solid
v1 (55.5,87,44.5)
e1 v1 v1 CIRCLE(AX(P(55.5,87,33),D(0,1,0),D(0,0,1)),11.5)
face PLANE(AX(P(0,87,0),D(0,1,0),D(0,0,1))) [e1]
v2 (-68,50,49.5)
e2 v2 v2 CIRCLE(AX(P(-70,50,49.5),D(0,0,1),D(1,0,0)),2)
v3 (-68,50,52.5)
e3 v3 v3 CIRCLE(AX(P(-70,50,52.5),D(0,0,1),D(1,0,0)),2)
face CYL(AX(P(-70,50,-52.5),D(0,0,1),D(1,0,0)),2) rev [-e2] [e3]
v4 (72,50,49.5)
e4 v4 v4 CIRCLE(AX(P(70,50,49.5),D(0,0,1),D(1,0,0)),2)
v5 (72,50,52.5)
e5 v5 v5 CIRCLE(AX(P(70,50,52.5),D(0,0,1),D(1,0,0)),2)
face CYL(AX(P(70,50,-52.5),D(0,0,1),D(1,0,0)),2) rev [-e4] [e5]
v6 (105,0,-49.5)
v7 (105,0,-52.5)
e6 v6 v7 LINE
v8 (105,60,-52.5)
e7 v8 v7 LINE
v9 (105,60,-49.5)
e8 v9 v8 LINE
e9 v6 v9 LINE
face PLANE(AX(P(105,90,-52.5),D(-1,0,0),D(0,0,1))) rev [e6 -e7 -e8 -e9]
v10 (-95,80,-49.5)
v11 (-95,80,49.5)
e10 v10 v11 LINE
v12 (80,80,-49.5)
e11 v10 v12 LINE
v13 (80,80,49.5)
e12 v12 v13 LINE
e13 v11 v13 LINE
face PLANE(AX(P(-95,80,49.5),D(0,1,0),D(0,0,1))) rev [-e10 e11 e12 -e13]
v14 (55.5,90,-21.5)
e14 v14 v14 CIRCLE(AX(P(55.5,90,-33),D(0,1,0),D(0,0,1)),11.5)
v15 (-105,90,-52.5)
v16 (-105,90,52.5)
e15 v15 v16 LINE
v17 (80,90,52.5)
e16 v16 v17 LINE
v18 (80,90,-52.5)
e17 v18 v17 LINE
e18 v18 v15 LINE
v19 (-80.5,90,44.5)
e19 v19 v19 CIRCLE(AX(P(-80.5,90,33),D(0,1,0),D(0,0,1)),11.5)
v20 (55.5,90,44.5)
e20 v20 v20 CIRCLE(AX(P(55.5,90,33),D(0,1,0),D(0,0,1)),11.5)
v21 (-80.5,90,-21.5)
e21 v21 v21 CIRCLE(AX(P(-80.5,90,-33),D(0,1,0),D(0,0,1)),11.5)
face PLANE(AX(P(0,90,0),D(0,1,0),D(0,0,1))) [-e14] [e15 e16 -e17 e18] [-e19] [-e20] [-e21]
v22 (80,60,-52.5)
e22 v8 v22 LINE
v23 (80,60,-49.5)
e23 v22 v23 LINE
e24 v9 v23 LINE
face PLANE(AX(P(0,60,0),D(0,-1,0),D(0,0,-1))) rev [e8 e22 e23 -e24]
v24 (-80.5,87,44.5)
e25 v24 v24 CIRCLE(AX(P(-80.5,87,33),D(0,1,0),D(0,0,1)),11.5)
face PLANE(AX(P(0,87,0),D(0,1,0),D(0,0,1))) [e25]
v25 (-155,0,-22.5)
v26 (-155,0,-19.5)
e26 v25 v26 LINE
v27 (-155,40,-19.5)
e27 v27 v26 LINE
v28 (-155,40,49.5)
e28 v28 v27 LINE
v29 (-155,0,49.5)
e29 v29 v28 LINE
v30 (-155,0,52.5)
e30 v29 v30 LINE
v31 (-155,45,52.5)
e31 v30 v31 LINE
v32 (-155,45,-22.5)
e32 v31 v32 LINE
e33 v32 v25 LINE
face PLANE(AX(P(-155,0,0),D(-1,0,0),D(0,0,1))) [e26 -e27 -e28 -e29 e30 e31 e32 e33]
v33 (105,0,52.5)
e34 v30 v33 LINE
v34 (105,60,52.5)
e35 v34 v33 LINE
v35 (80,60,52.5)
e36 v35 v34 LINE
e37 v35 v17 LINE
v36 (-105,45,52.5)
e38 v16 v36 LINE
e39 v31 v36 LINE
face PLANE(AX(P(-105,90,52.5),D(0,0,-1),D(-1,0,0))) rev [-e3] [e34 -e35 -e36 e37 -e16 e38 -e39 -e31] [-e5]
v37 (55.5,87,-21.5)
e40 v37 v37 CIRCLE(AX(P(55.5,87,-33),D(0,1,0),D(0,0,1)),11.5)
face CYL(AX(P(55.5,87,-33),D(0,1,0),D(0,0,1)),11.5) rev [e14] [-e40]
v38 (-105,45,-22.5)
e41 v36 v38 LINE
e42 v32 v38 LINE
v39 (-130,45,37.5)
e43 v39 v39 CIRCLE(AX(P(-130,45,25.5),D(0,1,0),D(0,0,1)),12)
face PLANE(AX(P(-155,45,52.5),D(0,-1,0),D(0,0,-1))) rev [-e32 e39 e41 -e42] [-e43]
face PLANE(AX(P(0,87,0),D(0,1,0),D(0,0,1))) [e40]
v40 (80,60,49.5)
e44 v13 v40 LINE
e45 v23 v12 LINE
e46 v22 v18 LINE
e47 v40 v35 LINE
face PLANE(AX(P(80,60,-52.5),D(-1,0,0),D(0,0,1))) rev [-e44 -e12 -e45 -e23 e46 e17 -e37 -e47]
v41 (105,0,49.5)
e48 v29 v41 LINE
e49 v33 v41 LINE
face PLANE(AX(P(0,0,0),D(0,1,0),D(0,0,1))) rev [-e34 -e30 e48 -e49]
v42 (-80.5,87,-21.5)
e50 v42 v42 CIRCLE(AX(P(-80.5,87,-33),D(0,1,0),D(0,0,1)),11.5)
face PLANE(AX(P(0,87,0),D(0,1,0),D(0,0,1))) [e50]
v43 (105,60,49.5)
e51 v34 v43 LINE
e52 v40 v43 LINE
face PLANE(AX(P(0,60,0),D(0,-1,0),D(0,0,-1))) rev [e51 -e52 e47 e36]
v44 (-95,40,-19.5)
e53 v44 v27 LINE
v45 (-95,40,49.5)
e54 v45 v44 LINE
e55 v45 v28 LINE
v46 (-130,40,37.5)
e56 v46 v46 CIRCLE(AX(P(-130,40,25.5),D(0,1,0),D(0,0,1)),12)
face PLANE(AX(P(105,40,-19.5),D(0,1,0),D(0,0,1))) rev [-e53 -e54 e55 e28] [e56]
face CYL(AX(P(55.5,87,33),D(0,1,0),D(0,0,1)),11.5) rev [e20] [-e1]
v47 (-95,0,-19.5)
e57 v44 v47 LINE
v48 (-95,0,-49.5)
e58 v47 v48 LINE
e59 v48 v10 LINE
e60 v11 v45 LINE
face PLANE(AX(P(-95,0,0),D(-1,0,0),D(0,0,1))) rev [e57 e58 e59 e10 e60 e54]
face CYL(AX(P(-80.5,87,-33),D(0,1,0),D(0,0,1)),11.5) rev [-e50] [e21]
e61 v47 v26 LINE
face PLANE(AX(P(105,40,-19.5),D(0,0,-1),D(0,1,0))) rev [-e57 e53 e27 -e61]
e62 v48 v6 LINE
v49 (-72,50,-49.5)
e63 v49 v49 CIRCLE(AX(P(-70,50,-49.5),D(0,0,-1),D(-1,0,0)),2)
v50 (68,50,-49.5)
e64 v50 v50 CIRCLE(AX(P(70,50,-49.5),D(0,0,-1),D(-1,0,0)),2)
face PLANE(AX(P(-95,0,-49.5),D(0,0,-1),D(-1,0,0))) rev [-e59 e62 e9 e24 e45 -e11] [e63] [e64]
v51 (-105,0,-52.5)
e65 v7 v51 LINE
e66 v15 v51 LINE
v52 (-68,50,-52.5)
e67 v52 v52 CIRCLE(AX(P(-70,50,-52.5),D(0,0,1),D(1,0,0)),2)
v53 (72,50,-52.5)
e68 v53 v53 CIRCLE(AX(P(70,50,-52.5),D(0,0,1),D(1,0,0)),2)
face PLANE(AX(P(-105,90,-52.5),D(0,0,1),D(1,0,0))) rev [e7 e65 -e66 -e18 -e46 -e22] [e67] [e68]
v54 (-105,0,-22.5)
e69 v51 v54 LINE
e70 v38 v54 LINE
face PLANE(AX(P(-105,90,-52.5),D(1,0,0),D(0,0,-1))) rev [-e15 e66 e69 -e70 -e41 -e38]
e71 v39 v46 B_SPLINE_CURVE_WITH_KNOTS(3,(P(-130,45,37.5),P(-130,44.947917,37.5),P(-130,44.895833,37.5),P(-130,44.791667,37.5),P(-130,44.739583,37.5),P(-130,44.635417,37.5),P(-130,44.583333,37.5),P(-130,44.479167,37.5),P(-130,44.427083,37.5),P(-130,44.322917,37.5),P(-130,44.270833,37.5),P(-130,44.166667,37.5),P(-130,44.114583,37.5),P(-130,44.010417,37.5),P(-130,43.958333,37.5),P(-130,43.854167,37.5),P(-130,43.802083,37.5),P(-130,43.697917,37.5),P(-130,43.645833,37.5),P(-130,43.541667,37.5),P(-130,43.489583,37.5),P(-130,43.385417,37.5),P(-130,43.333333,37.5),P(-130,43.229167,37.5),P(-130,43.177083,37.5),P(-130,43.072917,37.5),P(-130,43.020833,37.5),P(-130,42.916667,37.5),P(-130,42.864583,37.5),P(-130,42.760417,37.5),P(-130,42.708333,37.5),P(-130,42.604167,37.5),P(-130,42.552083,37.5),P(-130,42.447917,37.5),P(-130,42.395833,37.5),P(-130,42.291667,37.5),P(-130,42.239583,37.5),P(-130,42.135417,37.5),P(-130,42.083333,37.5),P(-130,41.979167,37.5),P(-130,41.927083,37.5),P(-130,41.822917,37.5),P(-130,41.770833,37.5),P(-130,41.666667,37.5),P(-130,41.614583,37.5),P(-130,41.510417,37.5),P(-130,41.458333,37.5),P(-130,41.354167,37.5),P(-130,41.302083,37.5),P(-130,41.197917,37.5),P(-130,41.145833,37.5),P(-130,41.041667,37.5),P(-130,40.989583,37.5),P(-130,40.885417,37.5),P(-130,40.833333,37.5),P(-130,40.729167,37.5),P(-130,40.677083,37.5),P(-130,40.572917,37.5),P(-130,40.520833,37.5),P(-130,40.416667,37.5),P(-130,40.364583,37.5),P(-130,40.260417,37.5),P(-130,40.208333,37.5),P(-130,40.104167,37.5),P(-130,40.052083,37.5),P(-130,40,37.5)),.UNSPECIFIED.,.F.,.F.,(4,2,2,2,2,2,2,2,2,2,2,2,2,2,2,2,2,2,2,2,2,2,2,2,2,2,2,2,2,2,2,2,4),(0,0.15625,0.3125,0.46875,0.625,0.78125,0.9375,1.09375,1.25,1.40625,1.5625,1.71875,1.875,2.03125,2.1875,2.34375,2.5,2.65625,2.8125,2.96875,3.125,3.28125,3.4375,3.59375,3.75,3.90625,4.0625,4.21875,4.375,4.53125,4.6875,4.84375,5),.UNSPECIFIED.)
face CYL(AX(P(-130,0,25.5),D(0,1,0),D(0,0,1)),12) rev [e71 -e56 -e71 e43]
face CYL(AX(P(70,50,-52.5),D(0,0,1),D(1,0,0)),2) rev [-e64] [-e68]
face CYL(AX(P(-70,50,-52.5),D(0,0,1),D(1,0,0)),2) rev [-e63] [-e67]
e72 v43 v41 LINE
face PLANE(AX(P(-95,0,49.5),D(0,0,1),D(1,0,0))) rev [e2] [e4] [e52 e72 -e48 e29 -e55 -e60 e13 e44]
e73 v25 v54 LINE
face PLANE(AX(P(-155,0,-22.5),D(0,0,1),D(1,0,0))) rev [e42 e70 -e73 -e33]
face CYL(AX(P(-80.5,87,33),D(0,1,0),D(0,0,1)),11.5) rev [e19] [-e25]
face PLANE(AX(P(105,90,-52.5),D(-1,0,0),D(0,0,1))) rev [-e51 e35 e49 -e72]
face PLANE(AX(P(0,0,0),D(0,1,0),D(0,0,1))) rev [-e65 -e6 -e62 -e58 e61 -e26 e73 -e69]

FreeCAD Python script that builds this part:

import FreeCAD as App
import Part
import Sketcher


def add_polygon(sketch, points):
    """Adds a closed chain of lines whose ends are joined by coincident constraints."""
    first, n = sketch.GeometryCount, len(points)
    for a, b in zip(points, points[1:] + points[:1]):
        sketch.addGeometry(Part.LineSegment(App.Vector(*a, 0), App.Vector(*b, 0)), False)
    for i in range(n):
        sketch.addConstraint(Sketcher.Constraint("Coincident", first + i, 2, first + (i + 1) % n, 1))

doc = App.newDocument("Part")
body = doc.addObject("PartDesign::Body", "Body")

sketch1 = body.newObject("Sketcher::SketchObject", "Sketch")
sketch1.AttachmentSupport = (doc.getObject("XZ_Plane"), [""])
sketch1.MapMode = "FlatFace"
add_polygon(sketch1, [(-105, -52), (-105, 52), (105, 52), (105, -52)])
sketch1.addConstraint(Sketcher.Constraint("Vertical", 0))
sketch1.addConstraint(Sketcher.Constraint("Horizontal", 1))
sketch1.addConstraint(Sketcher.Constraint("Vertical", 2))
sketch1.addConstraint(Sketcher.Constraint("Horizontal", 3))
sketch1.addConstraint(Sketcher.Constraint("Symmetric", 0, 2, 2, 2, -1, 1))
sketch1.addConstraint(Sketcher.Constraint("DistanceX", 1, 1, 1, 2, 210.0))
sketch1.addConstraint(Sketcher.Constraint("DistanceY", 0, 1, 0, 2, 105.0))
pad1 = body.newObject("PartDesign::Pad", "Pad")
pad1.Profile = sketch1
pad1.Length = 90
pad1.Reversed = True

sketch2 = body.newObject("Sketcher::SketchObject", "Sketch001")
sketch2.AttachmentSupport = (doc.getObject("YZ_Plane"), [""])
sketch2.MapMode = "FlatFace"
sketch2.AttachmentOffset = App.Placement(App.Vector(0, 0, 105), App.Rotation())
add_polygon(sketch2, [(80, 50), (0, 50), (0, -50), (80, -50)])
sketch2.addConstraint(Sketcher.Constraint("Horizontal", 0))
sketch2.addConstraint(Sketcher.Constraint("Vertical", 1))
sketch2.addConstraint(Sketcher.Constraint("Horizontal", 2))
sketch2.addConstraint(Sketcher.Constraint("Vertical", 3))
sketch2.addConstraint(Sketcher.Constraint("Symmetric", 0, 2, 1, 2, -1, 1))
sketch2.addConstraint(Sketcher.Constraint("DistanceX", 0, 2, 0, 1, 80.0))
sketch2.addConstraint(Sketcher.Constraint("DistanceY", 1, 2, 1, 1, 99.0))
pocket1 = body.newObject("PartDesign::Pocket", "Pocket")
pocket1.Profile = sketch2
pocket1.Length = 200

sketch3 = body.newObject("Sketcher::SketchObject", "Sketch002")
sketch3.AttachmentSupport = (doc.getObject("YZ_Plane"), [""])
sketch3.MapMode = "FlatFace"
sketch3.AttachmentOffset = App.Placement(App.Vector(0, 0, -105), App.Rotation())
add_polygon(sketch3, [(45, -22), (0, -22), (0, 52), (45, 52)])
sketch3.addConstraint(Sketcher.Constraint("Horizontal", 0))
sketch3.addConstraint(Sketcher.Constraint("Vertical", 1))
sketch3.addConstraint(Sketcher.Constraint("Horizontal", 2))
sketch3.addConstraint(Sketcher.Constraint("Vertical", 3))
sketch3.addConstraint(Sketcher.Constraint("PointOnObject", 0, 2, -2))
sketch3.addConstraint(Sketcher.Constraint("DistanceX", 0, 2, 0, 1, 45.0))
sketch3.addConstraint(Sketcher.Constraint("DistanceY", 1, 1, 1, 2, 75.0))
sketch3.addConstraint(Sketcher.Constraint("DistanceY", 0, 2, -1, 1, 22.5))
pad2 = body.newObject("PartDesign::Pad", "Pad001")
pad2.Profile = sketch3
pad2.Length = 50
pad2.Reversed = True

sketch4 = body.newObject("Sketcher::SketchObject", "Sketch003")
sketch4.AttachmentSupport = (doc.getObject("YZ_Plane"), [""])
sketch4.MapMode = "FlatFace"
sketch4.AttachmentOffset = App.Placement(App.Vector(0, 0, -155), App.Rotation())
add_polygon(sketch4, [(40, -20), (0, -20), (0, 50), (40, 50)])
sketch4.addConstraint(Sketcher.Constraint("Horizontal", 0))
sketch4.addConstraint(Sketcher.Constraint("Vertical", 1))
sketch4.addConstraint(Sketcher.Constraint("Horizontal", 2))
sketch4.addConstraint(Sketcher.Constraint("Vertical", 3))
sketch4.addConstraint(Sketcher.Constraint("PointOnObject", 0, 2, -2))
sketch4.addConstraint(Sketcher.Constraint("DistanceX", 0, 2, 0, 1, 40.0))
sketch4.addConstraint(Sketcher.Constraint("DistanceY", 1, 1, 1, 2, 69.0))
sketch4.addConstraint(Sketcher.Constraint("DistanceY", 0, 2, -1, 1, 19.5))
pocket2 = body.newObject("PartDesign::Pocket", "Pocket001")
pocket2.Profile = sketch4
pocket2.Type = "ThroughAll"
pocket2.Reversed = True

sketch5 = body.newObject("Sketcher::SketchObject", "Sketch004")
sketch5.AttachmentSupport = (doc.getObject("XZ_Plane"), [""])
sketch5.MapMode = "FlatFace"
sketch5.AttachmentOffset = App.Placement(App.Vector(0, 0, -45), App.Rotation())
sketch5.addGeometry(Part.Circle(App.Vector(-130, 26, 0), App.Vector(0, 0, 1), 12), False)
sketch5.addConstraint(Sketcher.Constraint("Diameter", 0, 24.0))
sketch5.addConstraint(Sketcher.Constraint("DistanceX", 0, 3, -1, 1, 130.0))
sketch5.addConstraint(Sketcher.Constraint("DistanceY", -1, 1, 0, 3, 25.5))
pocket3 = body.newObject("PartDesign::Pocket", "Pocket002")
pocket3.Profile = sketch5
pocket3.Type = "ThroughAll"
pocket3.Reversed = True

sketch6 = body.newObject("Sketcher::SketchObject", "Sketch005")
sketch6.AttachmentSupport = (doc.getObject("XY_Plane"), [""])
sketch6.MapMode = "FlatFace"
sketch6.AttachmentOffset = App.Placement(App.Vector(0, 0, 52.5), App.Rotation())
sketch6.addGeometry(Part.Circle(App.Vector(-70, 50, 0), App.Vector(0, 0, 1), 2), False)
sketch6.addGeometry(Part.Circle(App.Vector(70, 50, 0), App.Vector(0, 0, 1), 2), False)
sketch6.addConstraint(Sketcher.Constraint("Equal", 0, 1))
sketch6.addConstraint(Sketcher.Constraint("Symmetric", 0, 3, 1, 3, -2))
sketch6.addConstraint(Sketcher.Constraint("Diameter", 0, 4.0))
sketch6.addConstraint(Sketcher.Constraint("DistanceX", 0, 3, -1, 1, 70.0))
sketch6.addConstraint(Sketcher.Constraint("DistanceY", -1, 1, 0, 3, 50.0))
pocket4 = body.newObject("PartDesign::Pocket", "Pocket003")
pocket4.Profile = sketch6
pocket4.Type = "ThroughAll"

sketch7 = body.newObject("Sketcher::SketchObject", "Sketch006")
sketch7.AttachmentSupport = (doc.getObject("XZ_Plane"), [""])
sketch7.MapMode = "FlatFace"
sketch7.AttachmentOffset = App.Placement(App.Vector(0, 0, -90), App.Rotation())
add_polygon(sketch7, [(80, -52), (80, 52), (105, 52), (105, -52)])
sketch7.addConstraint(Sketcher.Constraint("Vertical", 0))
sketch7.addConstraint(Sketcher.Constraint("Horizontal", 1))
sketch7.addConstraint(Sketcher.Constraint("Vertical", 2))
sketch7.addConstraint(Sketcher.Constraint("Horizontal", 3))
sketch7.addConstraint(Sketcher.Constraint("DistanceX", 1, 1, 1, 2, 25.0))
sketch7.addConstraint(Sketcher.Constraint("DistanceY", 0, 1, 0, 2, 105.0))
sketch7.addConstraint(Sketcher.Constraint("DistanceX", -1, 1, 0, 2, 80.0))
sketch7.addConstraint(Sketcher.Constraint("DistanceY", -1, 1, 0, 2, 52.5))
pocket5 = body.newObject("PartDesign::Pocket", "Pocket004")
pocket5.Profile = sketch7
pocket5.Length = 30
pocket5.Reversed = True

sketch8 = body.newObject("Sketcher::SketchObject", "Sketch007")
sketch8.AttachmentSupport = (doc.getObject("XZ_Plane"), [""])
sketch8.MapMode = "FlatFace"
sketch8.AttachmentOffset = App.Placement(App.Vector(0, 0, -90), App.Rotation())
sketch8.addGeometry(Part.Circle(App.Vector(-80, -33, 0), App.Vector(0, 0, 1), 12), False)
sketch8.addGeometry(Part.Circle(App.Vector(56, -33, 0), App.Vector(0, 0, 1), 12), False)
sketch8.addGeometry(Part.Circle(App.Vector(-80, 33, 0), App.Vector(0, 0, 1), 12), False)
sketch8.addGeometry(Part.Circle(App.Vector(56, 33, 0), App.Vector(0, 0, 1), 12), False)
sketch8.addConstraint(Sketcher.Constraint("Equal", 0, 1))
sketch8.addConstraint(Sketcher.Constraint("Equal", 1, 2))
sketch8.addConstraint(Sketcher.Constraint("Equal", 2, 3))
sketch8.addConstraint(Sketcher.Constraint("Symmetric", 0, 3, 2, 3, -1))
sketch8.addConstraint(Sketcher.Constraint("Symmetric", 1, 3, 3, 3, -1))
sketch8.addConstraint(Sketcher.Constraint("Horizontal", 0, 3, 1, 3))
sketch8.addConstraint(Sketcher.Constraint("Diameter", 0, 23.0))
sketch8.addConstraint(Sketcher.Constraint("DistanceY", 0, 3, -1, 1, 33.0))
sketch8.addConstraint(Sketcher.Constraint("DistanceX", 0, 3, 1, 3, 136.0))
sketch8.addConstraint(Sketcher.Constraint("DistanceX", 0, 3, -1, 1, 80.5))
pocket6 = body.newObject("PartDesign::Pocket", "Pocket005")
pocket6.Profile = sketch8
pocket6.Length = 3
pocket6.Reversed = True

doc.recompute()
